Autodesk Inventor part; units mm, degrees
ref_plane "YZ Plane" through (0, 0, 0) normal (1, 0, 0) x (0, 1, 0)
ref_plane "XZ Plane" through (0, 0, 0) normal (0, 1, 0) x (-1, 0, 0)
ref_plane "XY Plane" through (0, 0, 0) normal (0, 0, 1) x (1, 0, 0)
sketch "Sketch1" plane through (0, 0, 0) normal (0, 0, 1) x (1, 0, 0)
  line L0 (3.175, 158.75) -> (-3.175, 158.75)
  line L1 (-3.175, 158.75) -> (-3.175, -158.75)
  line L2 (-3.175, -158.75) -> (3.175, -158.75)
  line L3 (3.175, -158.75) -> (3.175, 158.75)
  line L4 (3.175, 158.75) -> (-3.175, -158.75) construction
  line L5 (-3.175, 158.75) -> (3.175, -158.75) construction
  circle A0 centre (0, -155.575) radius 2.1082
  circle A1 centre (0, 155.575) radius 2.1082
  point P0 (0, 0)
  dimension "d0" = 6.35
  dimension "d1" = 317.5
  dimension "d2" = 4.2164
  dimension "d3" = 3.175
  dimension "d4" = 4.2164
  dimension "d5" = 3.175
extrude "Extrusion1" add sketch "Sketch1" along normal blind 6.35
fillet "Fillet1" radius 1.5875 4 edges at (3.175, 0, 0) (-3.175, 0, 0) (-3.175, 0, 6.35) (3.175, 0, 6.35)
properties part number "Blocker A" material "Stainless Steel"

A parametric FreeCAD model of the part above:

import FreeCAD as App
import Part
import Sketcher
from FreeCAD import Vector
Q = App.Units.Quantity


def edges_at(feature, points):
    """Names of the edges that pass closest to the given points."""
    edges = feature.Shape.Edges
    near = lambda p: min(range(len(edges)), key=lambda i: edges[i].distToShape(Part.Vertex(*p))[0])
    return sorted({f"Edge{near(p) + 1}" for p in points})

doc = App.newDocument("Part")
body = doc.addObject("PartDesign::Body", "Body")

# Sketch on XY plane
sketch1 = doc.addObject("Sketcher::SketchObject", "Sketch")
body.addObject(sketch1)
sketch1.AttachmentSupport = (doc.XY_Plane, [""])
sketch1.MapMode = "FlatFace"
sketch1.addGeometry([
    Part.LineSegment(Vector(3.2, -158.8, 0), Vector(3.2, 158.8, 0)),  # 0
    Part.LineSegment(Vector(3.2, 158.8, 0), Vector(-3.2, 158.8, 0)),  # 1
    Part.LineSegment(Vector(-3.2, 158.8, 0), Vector(-3.2, -158.8, 0)),  # 2
    Part.LineSegment(Vector(-3.2, -158.8, 0), Vector(3.2, -158.8, 0)),  # 3
    Part.Circle(Vector(0, -155.6, 0), Vector(0, 0, 1), 2.1),  # 4
    Part.Circle(Vector(0, 155.6, 0), Vector(0, 0, 1), 2.1),  # 5
], False)
sketch1.addConstraint([
    Sketcher.Constraint("Coincident", 0, 2, 1, 1),
    Sketcher.Constraint("Coincident", 1, 2, 2, 1),
    Sketcher.Constraint("Coincident", 2, 2, 3, 1),
    Sketcher.Constraint("Coincident", 3, 2, 0, 1),
    Sketcher.Constraint("Vertical", 0),
    Sketcher.Constraint("Horizontal", 1),
    Sketcher.Constraint("Vertical", 2),
    Sketcher.Constraint("Horizontal", 3),
    Sketcher.Constraint("Equal", 4, 5),
    Sketcher.Constraint("Symmetric", 4, 3, 5, 3, -1, 1),
    Sketcher.Constraint("Symmetric", 0, 2, 2, 2, -1, 1),
    Sketcher.Constraint("PointOnObject", 4, 3, -2),
    Sketcher.Constraint("Diameter", 4, Q("0.166 in")),
    Sketcher.Constraint("DistanceY", 0, 1, 0, 2, Q("12.5 in")),
    Sketcher.Constraint("DistanceX", 1, 2, 1, 1, Q("0.25 in")),
    Sketcher.Constraint("DistanceY", 5, 3, 0, 2, Q("0.125 in")),
])
pad1 = doc.addObject("PartDesign::Pad", "Pad")
body.addObject(pad1)
pad1.Profile = sketch1
pad1.Length = Q("0.25 in")
doc.recompute()

fillet = doc.addObject("PartDesign::Fillet", "Fillet")
body.addObject(fillet)
fillet.Base = (pad1, edges_at(pad1, [
    (3.175, 0, 0),
    (-3.175, 0, 0),
    (-3.175, 0, 6.35),
    (3.175, 0, 6.35),
]))
fillet.Radius = Q("0.0625 in")

doc.recompute()
